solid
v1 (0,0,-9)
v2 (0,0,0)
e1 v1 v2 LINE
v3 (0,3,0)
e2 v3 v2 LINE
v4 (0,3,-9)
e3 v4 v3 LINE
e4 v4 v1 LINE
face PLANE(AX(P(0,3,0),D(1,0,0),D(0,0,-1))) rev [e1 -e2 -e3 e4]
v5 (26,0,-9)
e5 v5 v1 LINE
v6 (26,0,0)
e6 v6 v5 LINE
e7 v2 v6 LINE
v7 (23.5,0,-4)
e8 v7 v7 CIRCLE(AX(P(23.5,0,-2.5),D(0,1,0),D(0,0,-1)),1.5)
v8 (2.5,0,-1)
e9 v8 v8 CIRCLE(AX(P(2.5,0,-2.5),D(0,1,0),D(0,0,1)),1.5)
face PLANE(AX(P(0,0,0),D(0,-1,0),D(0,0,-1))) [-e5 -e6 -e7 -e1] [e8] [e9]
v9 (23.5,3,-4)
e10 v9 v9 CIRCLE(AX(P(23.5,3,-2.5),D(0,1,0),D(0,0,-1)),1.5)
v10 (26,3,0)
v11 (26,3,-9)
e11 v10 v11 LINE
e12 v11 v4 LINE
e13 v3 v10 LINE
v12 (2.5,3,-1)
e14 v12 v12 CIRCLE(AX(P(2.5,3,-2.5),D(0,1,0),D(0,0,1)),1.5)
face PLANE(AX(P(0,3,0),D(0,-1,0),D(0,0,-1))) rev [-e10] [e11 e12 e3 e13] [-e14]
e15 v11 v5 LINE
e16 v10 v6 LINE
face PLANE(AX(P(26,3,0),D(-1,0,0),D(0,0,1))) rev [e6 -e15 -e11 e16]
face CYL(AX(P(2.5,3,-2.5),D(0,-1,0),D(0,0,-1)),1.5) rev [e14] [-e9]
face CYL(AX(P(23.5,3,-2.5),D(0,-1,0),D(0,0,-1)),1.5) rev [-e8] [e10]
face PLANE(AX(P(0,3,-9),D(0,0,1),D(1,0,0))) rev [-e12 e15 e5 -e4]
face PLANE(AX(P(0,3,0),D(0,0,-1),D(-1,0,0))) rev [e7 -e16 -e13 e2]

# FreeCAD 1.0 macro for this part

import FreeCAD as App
import Part
import Sketcher
from FreeCAD import Vector
Q = App.Units.Quantity


def add_polygon(sketch, points):
    """Adds a closed chain of lines whose ends are joined by coincident constraints."""
    first, n = sketch.GeometryCount, len(points)
    for a, b in zip(points, points[1:] + points[:1]):
        sketch.addGeometry(Part.LineSegment(App.Vector(*a, 0), App.Vector(*b, 0)), False)
    for i in range(n):
        sketch.addConstraint(Sketcher.Constraint("Coincident", first + i, 2, first + (i + 1) % n, 1))

doc = App.newDocument("Part")
params = doc.addObject("Spreadsheet::Sheet", "Params")
for row, (alias, value) in enumerate([
    ("sketch1_diameter", "3 mm"),
    ("sketch1_width", "26 mm"),
    ("sketch1_height", "9 mm"),
    ("pad1_length", "3 mm"),
], start=1):
    params.set(f"A{row}", alias)
    params.set(f"B{row}", "=" + value)
    params.setAlias(f"B{row}", alias)

body = doc.addObject("PartDesign::Body", "Body")

sketch1 = doc.addObject("Sketcher::SketchObject", "Sketch")
body.addObject(sketch1)
sketch1.AttachmentSupport = (doc.XZ_Plane, [""])
sketch1.MapMode = "FlatFace"
add_polygon(sketch1, [(0, -9), (0, 0), (26, 0), (26, -9)])
sketch1.addGeometry(Part.Circle(Vector(2.5, -2.5, 0), Vector(0, 0, 1), 1.5), False)
sketch1.addGeometry(Part.Circle(Vector(23.5, -2.5, 0), Vector(0, 0, 1), 1.5), False)
sketch1.addConstraint(Sketcher.Constraint("Vertical", 0))
sketch1.addConstraint(Sketcher.Constraint("Horizontal", 1))
sketch1.addConstraint(Sketcher.Constraint("Vertical", 2))
sketch1.addConstraint(Sketcher.Constraint("Horizontal", 3))
sketch1.addConstraint(Sketcher.Constraint("Coincident", 0, 2, -1, 1))
sketch1.addConstraint(Sketcher.Constraint("Equal", 4, 5))
sketch1.addConstraint(Sketcher.Constraint("Horizontal", 4, 3, 5, 3))
sketch1.addConstraint(Sketcher.Constraint("Diameter", 4, Q("3 mm")))
sketch1.addConstraint(Sketcher.Constraint("DistanceX", 1, 1, 1, 2, Q("26 mm")))
sketch1.addConstraint(Sketcher.Constraint("DistanceY", 0, 1, 0, 2, Q("9 mm")))
sketch1.addConstraint(Sketcher.Constraint("DistanceX", 4, 3, 5, 3, Q("21 mm")))
sketch1.addConstraint(Sketcher.Constraint("DistanceX", -1, 1, 4, 3, Q("2.5 mm")))
sketch1.addConstraint(Sketcher.Constraint("DistanceY", 4, 3, -1, 1, Q("2.5 mm")))
sketch1.setExpression("Constraints[11]", "Params.sketch1_diameter")
sketch1.setExpression("Constraints[12]", "Params.sketch1_width")
sketch1.setExpression("Constraints[13]", "Params.sketch1_height")
pad1 = doc.addObject("PartDesign::Pad", "Pad")
body.addObject(pad1)
pad1.Profile = sketch1
pad1.setExpression("Length", "Params.pad1_length")
pad1.Reversed = True

doc.recompute()
